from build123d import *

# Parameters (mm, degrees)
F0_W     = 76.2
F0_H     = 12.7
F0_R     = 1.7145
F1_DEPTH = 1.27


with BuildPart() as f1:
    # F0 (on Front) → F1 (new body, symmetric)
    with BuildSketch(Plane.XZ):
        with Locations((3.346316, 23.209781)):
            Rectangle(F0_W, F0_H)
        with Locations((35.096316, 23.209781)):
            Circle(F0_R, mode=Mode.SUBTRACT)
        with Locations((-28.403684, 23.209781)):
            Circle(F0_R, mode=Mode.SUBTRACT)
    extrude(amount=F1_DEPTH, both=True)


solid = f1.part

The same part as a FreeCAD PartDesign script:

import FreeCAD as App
import Part
import Sketcher
from FreeCAD import Vector
Q = App.Units.Quantity


def add_polygon(sketch, points):
    """Adds a closed chain of lines whose ends are joined by coincident constraints."""
    first, n = sketch.GeometryCount, len(points)
    for a, b in zip(points, points[1:] + points[:1]):
        sketch.addGeometry(Part.LineSegment(App.Vector(*a, 0), App.Vector(*b, 0)), False)
    for i in range(n):
        sketch.addConstraint(Sketcher.Constraint("Coincident", first + i, 2, first + (i + 1) % n, 1))

doc = App.newDocument("Part")
body = doc.addObject("PartDesign::Body", "Body")

sketch1 = body.newObject("Sketcher::SketchObject", "Sketch")
sketch1.AttachmentSupport = (doc.getObject("XZ_Plane"), [""])
sketch1.MapMode = "FlatFace"
add_polygon(sketch1, [(-34.753684, 29.559781), (-34.753684, 16.859781), (41.446316, 16.859781), (41.446316, 29.559781)])
sketch1.addGeometry(Part.Circle(Vector(-28.403684, 23.209781, 0), Vector(0, 0, 1), 1.7145), False)
sketch1.addGeometry(Part.Circle(Vector(35.096316, 23.209781, 0), Vector(0, 0, 1), 1.7145), False)
sketch1.addConstraint([
    Sketcher.Constraint("Vertical", 0),
    Sketcher.Constraint("Horizontal", 1),
    Sketcher.Constraint("Vertical", 2),
    Sketcher.Constraint("Horizontal", 3),
    Sketcher.Constraint("Equal", 4, 5),
    Sketcher.Constraint("Horizontal", 4, 3, 5, 3),
    Sketcher.Constraint("DistanceX", 1, 1, 1, 2, Q("3 in")),
    Sketcher.Constraint("Diameter", 4, Q("0.135 in")),
    Sketcher.Constraint("DistanceY", 0, 2, 0, 1, Q("0.5 in")),
    Sketcher.Constraint("DistanceX", 4, 3, 5, 3, Q("2.5 in")),
    Sketcher.Constraint("DistanceX", 0, 2, 4, 3, Q("0.25 in")),
    Sketcher.Constraint("DistanceY", 0, 2, 4, 3, Q("0.25 in")),
    Sketcher.Constraint("DistanceY", -1, 1, 4, 3, Q("23.209781 mm")),
    Sketcher.Constraint("DistanceX", 4, 3, -1, 1, Q("28.403684 mm")),
])
pad1 = body.newObject("PartDesign::Pad", "Pad")
pad1.Profile = sketch1
pad1.Length = Q("0.1 in")
pad1.Midplane = True

doc.recompute()
